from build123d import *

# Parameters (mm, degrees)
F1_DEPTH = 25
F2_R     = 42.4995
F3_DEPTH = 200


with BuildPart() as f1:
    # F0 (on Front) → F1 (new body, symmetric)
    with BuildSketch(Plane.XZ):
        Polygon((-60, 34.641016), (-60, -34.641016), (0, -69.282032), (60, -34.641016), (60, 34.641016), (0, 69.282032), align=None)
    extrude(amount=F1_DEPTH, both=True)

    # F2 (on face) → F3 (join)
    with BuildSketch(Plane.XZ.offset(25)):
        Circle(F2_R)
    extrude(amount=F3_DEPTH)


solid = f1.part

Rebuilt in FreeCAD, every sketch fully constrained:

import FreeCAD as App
import Part
import Sketcher
from FreeCAD import Vector
Q = App.Units.Quantity


def add_polygon(sketch, points):
    """Adds a closed chain of lines whose ends are joined by coincident constraints."""
    first, n = sketch.GeometryCount, len(points)
    for a, b in zip(points, points[1:] + points[:1]):
        sketch.addGeometry(Part.LineSegment(App.Vector(*a, 0), App.Vector(*b, 0)), False)
    for i in range(n):
        sketch.addConstraint(Sketcher.Constraint("Coincident", first + i, 2, first + (i + 1) % n, 1))

doc = App.newDocument("Part")
body = doc.addObject("PartDesign::Body", "Body")

# Sketch on XZ plane
sketch1 = doc.addObject("Sketcher::SketchObject", "Sketch")
body.addObject(sketch1)
sketch1.AttachmentSupport = (doc.XZ_Plane, [""])
sketch1.MapMode = "FlatFace"
add_polygon(sketch1, [(-60, 35), (-60, -35), (0, -69), (60, -35), (60, 35), (0, 69)])  # lines 0-5
sketch1.addConstraint(Sketcher.Constraint("Vertical", 0))
sketch1.addConstraint(Sketcher.Constraint("Vertical", 3))
sketch1.addConstraint(Sketcher.Constraint("Symmetric", 0, 2, 3, 2, -1, 1))
sketch1.addConstraint(Sketcher.Constraint("Symmetric", 1, 2, 4, 2, -1, 1))
sketch1.addConstraint(Sketcher.Constraint("PointOnObject", 1, 2, -2))
sketch1.addConstraint(Sketcher.Constraint("Parallel", 2, 5))
sketch1.addConstraint(Sketcher.Constraint("Horizontal", 0, 2, 2, 2))
sketch1.addConstraint(Sketcher.Constraint("Angle", 1, Q("-30 deg")))
sketch1.addConstraint(Sketcher.Constraint("DistanceX", 0, 2, -1, 1, Q("60 mm")))
sketch1.addConstraint(Sketcher.Constraint("DistanceY", 0, 2, 0, 1, Q("69.282032 mm")))
pad1 = doc.addObject("PartDesign::Pad", "Pad")
body.addObject(pad1)
pad1.Profile = sketch1
pad1.Length = 50
pad1.Midplane = True

# Sketch on XZ plane
sketch2 = doc.addObject("Sketcher::SketchObject", "Sketch001")
body.addObject(sketch2)
sketch2.AttachmentSupport = (doc.XZ_Plane, [""])
sketch2.MapMode = "FlatFace"
sketch2.AttachmentOffset = App.Placement(Vector(0, 0, 25), App.Rotation())
sketch2.addGeometry(Part.Circle(Vector(0, 0, 0), Vector(0, 0, 1), 42), False)
sketch2.addConstraint(Sketcher.Constraint("Coincident", 0, 3, -1, 1))
sketch2.addConstraint(Sketcher.Constraint("Diameter", 0, Q("84.999 mm")))
pad2 = doc.addObject("PartDesign::Pad", "Pad001")
body.addObject(pad2)
pad2.Profile = sketch2
pad2.Length = 200

doc.recompute()
